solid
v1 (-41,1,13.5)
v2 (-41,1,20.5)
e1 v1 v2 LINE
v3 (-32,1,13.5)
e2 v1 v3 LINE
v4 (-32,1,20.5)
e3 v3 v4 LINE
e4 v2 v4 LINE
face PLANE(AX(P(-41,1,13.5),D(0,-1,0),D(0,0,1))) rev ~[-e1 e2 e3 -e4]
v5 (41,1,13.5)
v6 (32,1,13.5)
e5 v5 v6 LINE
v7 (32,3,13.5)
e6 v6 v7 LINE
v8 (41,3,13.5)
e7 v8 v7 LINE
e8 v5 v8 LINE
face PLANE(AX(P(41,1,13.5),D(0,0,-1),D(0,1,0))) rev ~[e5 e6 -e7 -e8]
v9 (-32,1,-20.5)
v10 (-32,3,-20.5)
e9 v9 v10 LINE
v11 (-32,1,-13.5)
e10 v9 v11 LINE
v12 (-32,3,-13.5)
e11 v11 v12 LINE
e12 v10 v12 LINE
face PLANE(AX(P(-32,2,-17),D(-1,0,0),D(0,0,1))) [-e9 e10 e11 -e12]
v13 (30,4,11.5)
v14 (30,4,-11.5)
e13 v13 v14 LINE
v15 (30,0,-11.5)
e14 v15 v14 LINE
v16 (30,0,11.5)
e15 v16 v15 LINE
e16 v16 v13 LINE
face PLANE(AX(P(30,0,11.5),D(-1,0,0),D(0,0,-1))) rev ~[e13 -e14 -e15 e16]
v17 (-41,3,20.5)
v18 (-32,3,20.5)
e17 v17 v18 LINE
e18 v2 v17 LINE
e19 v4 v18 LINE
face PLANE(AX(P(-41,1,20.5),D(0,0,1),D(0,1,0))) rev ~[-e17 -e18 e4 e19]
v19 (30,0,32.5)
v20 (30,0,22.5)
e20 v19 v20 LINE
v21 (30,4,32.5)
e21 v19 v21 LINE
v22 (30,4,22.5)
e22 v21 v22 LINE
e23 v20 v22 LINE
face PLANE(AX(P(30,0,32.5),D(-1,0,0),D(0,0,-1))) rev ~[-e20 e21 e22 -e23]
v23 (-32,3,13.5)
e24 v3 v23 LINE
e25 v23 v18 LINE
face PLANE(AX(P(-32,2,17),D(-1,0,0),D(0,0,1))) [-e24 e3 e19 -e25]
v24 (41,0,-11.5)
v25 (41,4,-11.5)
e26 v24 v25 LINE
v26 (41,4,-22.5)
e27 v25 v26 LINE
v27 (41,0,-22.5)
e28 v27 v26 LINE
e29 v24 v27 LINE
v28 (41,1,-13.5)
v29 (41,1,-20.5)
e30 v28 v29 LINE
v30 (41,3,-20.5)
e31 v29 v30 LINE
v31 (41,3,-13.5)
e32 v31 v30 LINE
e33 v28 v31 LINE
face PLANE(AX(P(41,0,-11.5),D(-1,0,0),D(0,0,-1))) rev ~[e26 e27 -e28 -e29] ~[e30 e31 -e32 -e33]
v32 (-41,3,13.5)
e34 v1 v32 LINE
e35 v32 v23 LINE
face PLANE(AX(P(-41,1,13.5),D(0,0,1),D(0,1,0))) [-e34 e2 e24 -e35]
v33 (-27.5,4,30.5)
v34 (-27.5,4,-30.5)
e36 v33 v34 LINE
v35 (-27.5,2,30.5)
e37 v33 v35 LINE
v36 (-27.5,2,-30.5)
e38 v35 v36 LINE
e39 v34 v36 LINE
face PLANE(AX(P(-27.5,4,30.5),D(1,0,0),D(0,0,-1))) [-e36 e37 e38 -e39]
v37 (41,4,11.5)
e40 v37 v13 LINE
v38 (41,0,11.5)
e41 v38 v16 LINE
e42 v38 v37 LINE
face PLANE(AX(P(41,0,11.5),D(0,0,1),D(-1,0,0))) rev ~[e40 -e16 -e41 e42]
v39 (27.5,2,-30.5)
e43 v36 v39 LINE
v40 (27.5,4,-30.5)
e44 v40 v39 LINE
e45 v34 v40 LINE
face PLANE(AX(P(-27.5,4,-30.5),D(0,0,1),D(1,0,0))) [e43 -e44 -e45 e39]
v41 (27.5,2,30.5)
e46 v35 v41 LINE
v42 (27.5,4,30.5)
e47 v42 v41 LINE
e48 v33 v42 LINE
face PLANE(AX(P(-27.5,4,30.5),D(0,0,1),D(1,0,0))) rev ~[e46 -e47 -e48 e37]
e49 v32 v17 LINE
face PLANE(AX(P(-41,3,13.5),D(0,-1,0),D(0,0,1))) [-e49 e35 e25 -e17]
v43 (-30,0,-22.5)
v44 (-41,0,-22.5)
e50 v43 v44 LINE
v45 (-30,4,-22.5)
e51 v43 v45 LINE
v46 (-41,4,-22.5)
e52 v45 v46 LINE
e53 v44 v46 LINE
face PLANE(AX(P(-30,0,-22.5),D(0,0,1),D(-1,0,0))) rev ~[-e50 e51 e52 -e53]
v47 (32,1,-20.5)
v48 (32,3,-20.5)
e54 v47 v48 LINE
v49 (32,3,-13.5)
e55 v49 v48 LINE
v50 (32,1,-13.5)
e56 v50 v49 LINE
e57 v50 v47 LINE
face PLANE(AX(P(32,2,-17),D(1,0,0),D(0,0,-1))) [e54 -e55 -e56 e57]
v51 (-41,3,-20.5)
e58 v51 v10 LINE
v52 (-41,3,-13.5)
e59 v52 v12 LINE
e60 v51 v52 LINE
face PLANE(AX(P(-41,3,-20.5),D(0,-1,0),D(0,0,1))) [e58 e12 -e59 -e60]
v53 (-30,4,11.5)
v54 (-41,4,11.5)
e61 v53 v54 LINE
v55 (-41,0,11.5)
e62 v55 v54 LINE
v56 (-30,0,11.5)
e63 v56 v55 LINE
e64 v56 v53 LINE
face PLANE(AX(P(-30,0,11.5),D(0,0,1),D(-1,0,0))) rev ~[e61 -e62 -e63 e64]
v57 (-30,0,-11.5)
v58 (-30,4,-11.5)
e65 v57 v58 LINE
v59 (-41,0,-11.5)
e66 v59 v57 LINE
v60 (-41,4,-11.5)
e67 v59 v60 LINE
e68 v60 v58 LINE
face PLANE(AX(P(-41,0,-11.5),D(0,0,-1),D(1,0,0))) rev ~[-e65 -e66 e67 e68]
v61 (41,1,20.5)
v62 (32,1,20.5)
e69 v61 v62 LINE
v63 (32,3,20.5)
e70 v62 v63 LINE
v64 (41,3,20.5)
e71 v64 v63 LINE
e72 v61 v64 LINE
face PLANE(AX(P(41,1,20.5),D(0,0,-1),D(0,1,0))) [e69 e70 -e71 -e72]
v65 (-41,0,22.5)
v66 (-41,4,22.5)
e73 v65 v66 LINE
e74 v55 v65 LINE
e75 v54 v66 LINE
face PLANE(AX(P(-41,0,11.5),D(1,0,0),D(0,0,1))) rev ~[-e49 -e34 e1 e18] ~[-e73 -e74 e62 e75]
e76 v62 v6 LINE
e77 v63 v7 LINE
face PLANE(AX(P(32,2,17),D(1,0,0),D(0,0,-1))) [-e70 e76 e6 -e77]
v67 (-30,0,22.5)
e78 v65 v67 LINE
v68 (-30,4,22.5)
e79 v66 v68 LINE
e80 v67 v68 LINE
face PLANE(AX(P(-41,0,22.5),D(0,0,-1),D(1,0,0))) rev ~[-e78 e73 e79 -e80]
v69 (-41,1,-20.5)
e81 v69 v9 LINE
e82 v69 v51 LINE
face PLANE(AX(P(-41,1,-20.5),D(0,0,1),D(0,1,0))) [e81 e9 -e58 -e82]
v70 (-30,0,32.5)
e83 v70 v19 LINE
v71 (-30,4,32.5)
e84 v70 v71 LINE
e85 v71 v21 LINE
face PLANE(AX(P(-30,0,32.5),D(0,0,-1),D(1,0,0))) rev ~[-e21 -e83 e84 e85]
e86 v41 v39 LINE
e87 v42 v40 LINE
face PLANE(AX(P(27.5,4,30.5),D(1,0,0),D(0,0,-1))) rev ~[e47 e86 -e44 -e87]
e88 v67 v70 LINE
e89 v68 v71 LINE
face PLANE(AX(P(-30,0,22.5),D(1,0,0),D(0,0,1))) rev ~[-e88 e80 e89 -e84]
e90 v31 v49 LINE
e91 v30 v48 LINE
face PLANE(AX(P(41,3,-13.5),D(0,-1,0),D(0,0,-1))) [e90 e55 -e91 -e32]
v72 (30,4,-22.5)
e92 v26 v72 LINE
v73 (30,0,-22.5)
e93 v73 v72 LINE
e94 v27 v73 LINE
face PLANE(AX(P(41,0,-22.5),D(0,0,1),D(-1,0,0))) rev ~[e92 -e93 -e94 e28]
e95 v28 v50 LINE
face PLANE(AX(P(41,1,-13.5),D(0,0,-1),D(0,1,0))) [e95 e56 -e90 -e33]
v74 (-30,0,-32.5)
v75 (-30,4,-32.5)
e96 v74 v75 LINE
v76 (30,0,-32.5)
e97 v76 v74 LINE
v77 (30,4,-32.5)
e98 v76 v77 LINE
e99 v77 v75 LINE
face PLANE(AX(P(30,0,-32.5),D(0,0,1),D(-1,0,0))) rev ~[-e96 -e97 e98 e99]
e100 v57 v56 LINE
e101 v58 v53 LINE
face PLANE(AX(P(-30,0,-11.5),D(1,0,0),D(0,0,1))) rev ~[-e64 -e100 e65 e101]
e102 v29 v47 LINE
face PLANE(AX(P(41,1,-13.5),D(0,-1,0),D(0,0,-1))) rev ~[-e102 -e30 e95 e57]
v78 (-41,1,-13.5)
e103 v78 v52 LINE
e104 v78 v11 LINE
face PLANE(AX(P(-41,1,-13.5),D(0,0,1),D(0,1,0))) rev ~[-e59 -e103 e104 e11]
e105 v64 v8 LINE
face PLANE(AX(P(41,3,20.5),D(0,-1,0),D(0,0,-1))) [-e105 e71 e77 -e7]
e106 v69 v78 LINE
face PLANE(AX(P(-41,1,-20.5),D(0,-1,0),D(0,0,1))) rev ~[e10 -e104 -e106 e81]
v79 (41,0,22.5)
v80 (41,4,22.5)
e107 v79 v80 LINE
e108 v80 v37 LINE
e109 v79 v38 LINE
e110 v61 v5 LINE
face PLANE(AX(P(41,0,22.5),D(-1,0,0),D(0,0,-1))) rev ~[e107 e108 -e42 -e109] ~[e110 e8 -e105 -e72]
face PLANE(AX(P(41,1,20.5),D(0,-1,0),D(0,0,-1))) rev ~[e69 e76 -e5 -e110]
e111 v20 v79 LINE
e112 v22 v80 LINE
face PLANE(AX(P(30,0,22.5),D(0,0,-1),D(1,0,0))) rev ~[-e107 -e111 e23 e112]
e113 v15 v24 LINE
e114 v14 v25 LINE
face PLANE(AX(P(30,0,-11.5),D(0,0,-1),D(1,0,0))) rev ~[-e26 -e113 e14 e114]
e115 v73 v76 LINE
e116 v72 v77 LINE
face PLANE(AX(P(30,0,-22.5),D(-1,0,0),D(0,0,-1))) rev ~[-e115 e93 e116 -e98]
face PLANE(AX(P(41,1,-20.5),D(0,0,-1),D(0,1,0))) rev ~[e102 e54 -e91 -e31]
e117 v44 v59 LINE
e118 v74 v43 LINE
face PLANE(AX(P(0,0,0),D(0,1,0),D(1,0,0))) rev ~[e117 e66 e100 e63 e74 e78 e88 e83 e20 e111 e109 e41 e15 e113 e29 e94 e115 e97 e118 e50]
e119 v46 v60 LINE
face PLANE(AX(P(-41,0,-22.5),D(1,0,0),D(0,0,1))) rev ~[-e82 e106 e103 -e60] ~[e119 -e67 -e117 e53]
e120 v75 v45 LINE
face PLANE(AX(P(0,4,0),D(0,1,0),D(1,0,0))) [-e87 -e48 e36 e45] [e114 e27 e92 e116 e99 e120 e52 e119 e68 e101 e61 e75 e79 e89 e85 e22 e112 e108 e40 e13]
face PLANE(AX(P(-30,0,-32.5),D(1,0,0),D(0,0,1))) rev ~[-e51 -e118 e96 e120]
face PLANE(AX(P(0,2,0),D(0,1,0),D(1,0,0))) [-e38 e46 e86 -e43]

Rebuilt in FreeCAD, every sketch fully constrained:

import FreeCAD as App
import Part
import Sketcher

doc = App.newDocument("Part")
body = doc.addObject("PartDesign::Body", "Body")

# Sketch on XZ plane
sketch1 = doc.addObject("Sketcher::SketchObject", "Sketch")
body.addObject(sketch1)
sketch1.AttachmentSupport = (doc.XZ_Plane, [""])
sketch1.MapMode = "FlatFace"
sketch1.addGeometry([
    Part.LineSegment(App.Vector(30, 32, 0), App.Vector(30, 22, 0)),  # 0
    Part.LineSegment(App.Vector(30, 22, 0), App.Vector(41, 22, 0)),  # 1
    Part.LineSegment(App.Vector(41, 22, 0), App.Vector(41, 12, 0)),  # 2
    Part.LineSegment(App.Vector(41, 12, 0), App.Vector(30, 12, 0)),  # 3
    Part.LineSegment(App.Vector(30, 12, 0), App.Vector(30, -12, 0)),  # 4
    Part.LineSegment(App.Vector(30, -12, 0), App.Vector(41, -12, 0)),  # 5
    Part.LineSegment(App.Vector(41, -12, 0), App.Vector(41, -22, 0)),  # 6
    Part.LineSegment(App.Vector(41, -22, 0), App.Vector(30, -22, 0)),  # 7
    Part.LineSegment(App.Vector(30, -22, 0), App.Vector(30, -32, 0)),  # 8
    Part.LineSegment(App.Vector(30, -32, 0), App.Vector(-30, -32, 0)),  # 9
    Part.LineSegment(App.Vector(-30, -32, 0), App.Vector(-30, -22, 0)),  # 10
    Part.LineSegment(App.Vector(-30, -22, 0), App.Vector(-41, -22, 0)),  # 11
    Part.LineSegment(App.Vector(-41, -22, 0), App.Vector(-41, -12, 0)),  # 12
    Part.LineSegment(App.Vector(-41, -12, 0), App.Vector(-30, -12, 0)),  # 13
    Part.LineSegment(App.Vector(-30, -12, 0), App.Vector(-30, 12, 0)),  # 14
    Part.LineSegment(App.Vector(-30, 12, 0), App.Vector(-41, 12, 0)),  # 15
    Part.LineSegment(App.Vector(-41, 12, 0), App.Vector(-41, 22, 0)),  # 16
    Part.LineSegment(App.Vector(-41, 22, 0), App.Vector(-30, 22, 0)),  # 17
    Part.LineSegment(App.Vector(-30, 22, 0), App.Vector(-30, 32, 0)),  # 18
    Part.LineSegment(App.Vector(-30, 32, 0), App.Vector(30, 32, 0)),  # 19
], False)
sketch1.addConstraint([
    Sketcher.Constraint("Coincident", 0, 2, 1, 1),
    Sketcher.Constraint("Coincident", 1, 2, 2, 1),
    Sketcher.Constraint("Coincident", 2, 2, 3, 1),
    Sketcher.Constraint("Coincident", 3, 2, 4, 1),
    Sketcher.Constraint("Coincident", 4, 2, 5, 1),
    Sketcher.Constraint("Coincident", 5, 2, 6, 1),
    Sketcher.Constraint("Coincident", 6, 2, 7, 1),
    Sketcher.Constraint("Coincident", 7, 2, 8, 1),
    Sketcher.Constraint("Coincident", 8, 2, 9, 1),
    Sketcher.Constraint("Coincident", 9, 2, 10, 1),
    Sketcher.Constraint("Coincident", 10, 2, 11, 1),
    Sketcher.Constraint("Coincident", 11, 2, 12, 1),
    Sketcher.Constraint("Coincident", 12, 2, 13, 1),
    Sketcher.Constraint("Coincident", 13, 2, 14, 1),
    Sketcher.Constraint("Coincident", 14, 2, 15, 1),
    Sketcher.Constraint("Coincident", 15, 2, 16, 1),
    Sketcher.Constraint("Coincident", 16, 2, 17, 1),
    Sketcher.Constraint("Coincident", 17, 2, 18, 1),
    Sketcher.Constraint("Coincident", 18, 2, 19, 1),
    Sketcher.Constraint("Coincident", 19, 2, 0, 1),
    Sketcher.Constraint("Vertical", 0),
    Sketcher.Constraint("Horizontal", 1),
    Sketcher.Constraint("Vertical", 2),
    Sketcher.Constraint("Horizontal", 3),
    Sketcher.Constraint("Vertical", 4),
    Sketcher.Constraint("Horizontal", 5),
    Sketcher.Constraint("Vertical", 6),
    Sketcher.Constraint("Horizontal", 7),
    Sketcher.Constraint("Vertical", 8),
    Sketcher.Constraint("Horizontal", 9),
    Sketcher.Constraint("Vertical", 10),
    Sketcher.Constraint("Horizontal", 11),
    Sketcher.Constraint("Vertical", 12),
    Sketcher.Constraint("Horizontal", 13),
    Sketcher.Constraint("Vertical", 14),
    Sketcher.Constraint("Horizontal", 15),
    Sketcher.Constraint("Vertical", 16),
    Sketcher.Constraint("Horizontal", 17),
    Sketcher.Constraint("Vertical", 18),
    Sketcher.Constraint("Horizontal", 19),
    Sketcher.Constraint("Symmetric", 0, 2, 10, 2, -1, 1),
    Sketcher.Constraint("Symmetric", 2, 2, 12, 2, -1, 1),
    Sketcher.Constraint("Symmetric", 4, 2, 14, 2, -1, 1),
    Sketcher.Constraint("Symmetric", 6, 2, 16, 2, -1, 1),
    Sketcher.Constraint("Symmetric", 8, 2, 18, 2, -1, 1),
    Sketcher.Constraint("Symmetric", 7, 2, 10, 2, -2),
    Sketcher.Constraint("Symmetric", 5, 2, 12, 2, -2),
    Sketcher.Constraint("Vertical", 0, 2, 3, 2),
    Sketcher.Constraint("Equal", 17, 2),
    Sketcher.Constraint("DistanceX", 1, 1, 1, 2, 11.0),
    Sketcher.Constraint("DistanceX", 9, 2, 9, 1, 60.0),
    Sketcher.Constraint("DistanceY", 0, 2, 0, 1, 10.0),
    Sketcher.Constraint("DistanceY", 4, 2, 4, 1, 23.0),
])
pad1 = doc.addObject("PartDesign::Pad", "Pad")
body.addObject(pad1)
pad1.Profile = sketch1
pad1.Length = 4
pad1.Reversed = True

# Sketch on XZ plane
sketch2 = doc.addObject("Sketcher::SketchObject", "Sketch001")
body.addObject(sketch2)
sketch2.AttachmentSupport = (doc.XZ_Plane, [""])
sketch2.MapMode = "FlatFace"
sketch2.AttachmentOffset = App.Placement(App.Vector(0, 0, -4), App.Rotation())
sketch2.addGeometry([
    Part.LineSegment(App.Vector(-28, -30, 0), App.Vector(-28, 30, 0)),
    Part.LineSegment(App.Vector(-28, 30, 0), App.Vector(28, 30, 0)),
    Part.LineSegment(App.Vector(28, 30, 0), App.Vector(28, -30, 0)),
    Part.LineSegment(App.Vector(28, -30, 0), App.Vector(-28, -30, 0)),
], False)
sketch2.addConstraint([
    Sketcher.Constraint("Coincident", 0, 2, 1, 1),
    Sketcher.Constraint("Coincident", 1, 2, 2, 1),
    Sketcher.Constraint("Coincident", 2, 2, 3, 1),
    Sketcher.Constraint("Coincident", 3, 2, 0, 1),
    Sketcher.Constraint("Vertical", 0),
    Sketcher.Constraint("Horizontal", 1),
    Sketcher.Constraint("Vertical", 2),
    Sketcher.Constraint("Horizontal", 3),
    Sketcher.Constraint("Symmetric", 0, 2, 2, 2, -1, 1),
    Sketcher.Constraint("DistanceX", 1, 1, 1, 2, 55.0),
    Sketcher.Constraint("DistanceY", 0, 1, 0, 2, 61.0),
])
pocket1 = doc.addObject("PartDesign::Pocket", "Pocket")
body.addObject(pocket1)
pocket1.Profile = sketch2
pocket1.Length = 2
pocket1.Reversed = True

# Sketch on YZ plane
sketch3 = doc.addObject("Sketcher::SketchObject", "Sketch002")
body.addObject(sketch3)
sketch3.AttachmentSupport = (doc.YZ_Plane, [""])
sketch3.MapMode = "FlatFace"
sketch3.AttachmentOffset = App.Placement(App.Vector(0, 0, -41), App.Rotation())
sketch3.addGeometry([
    Part.LineSegment(App.Vector(3, -20.5, 0), App.Vector(1, -20.5, 0)),
    Part.LineSegment(App.Vector(1, -20.5, 0), App.Vector(1, -13.5, 0)),
    Part.LineSegment(App.Vector(1, -13.5, 0), App.Vector(3, -13.5, 0)),
    Part.LineSegment(App.Vector(3, -13.5, 0), App.Vector(3, -20.5, 0)),
], False)
sketch3.addConstraint([
    Sketcher.Constraint("Coincident", 0, 2, 1, 1),
    Sketcher.Constraint("Coincident", 1, 2, 2, 1),
    Sketcher.Constraint("Coincident", 2, 2, 3, 1),
    Sketcher.Constraint("Coincident", 3, 2, 0, 1),
    Sketcher.Constraint("Horizontal", 0),
    Sketcher.Constraint("Vertical", 1),
    Sketcher.Constraint("Horizontal", 2),
    Sketcher.Constraint("Vertical", 3),
    Sketcher.Constraint("DistanceX", 0, 2, 0, 1, 2.0),
    Sketcher.Constraint("DistanceY", 1, 1, 1, 2, 7.0),
    Sketcher.Constraint("DistanceX", -1, 1, 0, 2, 1.0),
    Sketcher.Constraint("DistanceY", 0, 2, -1, 1, 20.5),
])
pocket2 = doc.addObject("PartDesign::Pocket", "Pocket001")
body.addObject(pocket2)
pocket2.Profile = sketch3
pocket2.Length = 9
pocket2.Reversed = True

# Sketch on YZ plane
sketch4 = doc.addObject("Sketcher::SketchObject", "Sketch003")
body.addObject(sketch4)
sketch4.AttachmentSupport = (doc.YZ_Plane, [""])
sketch4.MapMode = "FlatFace"
sketch4.AttachmentOffset = App.Placement(App.Vector(0, 0, -41), App.Rotation())
sketch4.addGeometry([
    Part.LineSegment(App.Vector(3, 13.5, 0), App.Vector(1, 13.5, 0)),
    Part.LineSegment(App.Vector(1, 13.5, 0), App.Vector(1, 20.5, 0)),
    Part.LineSegment(App.Vector(1, 20.5, 0), App.Vector(3, 20.5, 0)),
    Part.LineSegment(App.Vector(3, 20.5, 0), App.Vector(3, 13.5, 0)),
], False)
sketch4.addConstraint([
    Sketcher.Constraint("Coincident", 0, 2, 1, 1),
    Sketcher.Constraint("Coincident", 1, 2, 2, 1),
    Sketcher.Constraint("Coincident", 2, 2, 3, 1),
    Sketcher.Constraint("Coincident", 3, 2, 0, 1),
    Sketcher.Constraint("Horizontal", 0),
    Sketcher.Constraint("Vertical", 1),
    Sketcher.Constraint("Horizontal", 2),
    Sketcher.Constraint("Vertical", 3),
    Sketcher.Constraint("DistanceX", 0, 2, 0, 1, 2.0),
    Sketcher.Constraint("DistanceY", 1, 1, 1, 2, 7.0),
    Sketcher.Constraint("DistanceX", -1, 1, 0, 2, 1.0),
    Sketcher.Constraint("DistanceY", -1, 1, 0, 2, 13.5),
])
pocket3 = doc.addObject("PartDesign::Pocket", "Pocket002")
body.addObject(pocket3)
pocket3.Profile = sketch4
pocket3.Length = 9
pocket3.Reversed = True

# Sketch on YZ plane
sketch5 = doc.addObject("Sketcher::SketchObject", "Sketch004")
body.addObject(sketch5)
sketch5.AttachmentSupport = (doc.YZ_Plane, [""])
sketch5.MapMode = "FlatFace"
sketch5.AttachmentOffset = App.Placement(App.Vector(0, 0, 41), App.Rotation())
sketch5.addGeometry([
    Part.LineSegment(App.Vector(3, 20.5, 0), App.Vector(1, 20.5, 0)),
    Part.LineSegment(App.Vector(1, 20.5, 0), App.Vector(1, 13.5, 0)),
    Part.LineSegment(App.Vector(1, 13.5, 0), App.Vector(3, 13.5, 0)),
    Part.LineSegment(App.Vector(3, 13.5, 0), App.Vector(3, 20.5, 0)),
], False)
sketch5.addConstraint([
    Sketcher.Constraint("Coincident", 0, 2, 1, 1),
    Sketcher.Constraint("Coincident", 1, 2, 2, 1),
    Sketcher.Constraint("Coincident", 2, 2, 3, 1),
    Sketcher.Constraint("Coincident", 3, 2, 0, 1),
    Sketcher.Constraint("Horizontal", 0),
    Sketcher.Constraint("Vertical", 1),
    Sketcher.Constraint("Horizontal", 2),
    Sketcher.Constraint("Vertical", 3),
    Sketcher.Constraint("DistanceX", 0, 2, 0, 1, 2.0),
    Sketcher.Constraint("DistanceY", 1, 2, 1, 1, 7.0),
    Sketcher.Constraint("DistanceX", -1, 1, 0, 2, 1.0),
    Sketcher.Constraint("DistanceY", -1, 1, 0, 2, 20.5),
])
pocket4 = doc.addObject("PartDesign::Pocket", "Pocket003")
body.addObject(pocket4)
pocket4.Profile = sketch5
pocket4.Length = 9

# Sketch on YZ plane
sketch6 = doc.addObject("Sketcher::SketchObject", "Sketch005")
body.addObject(sketch6)
sketch6.AttachmentSupport = (doc.YZ_Plane, [""])
sketch6.MapMode = "FlatFace"
sketch6.AttachmentOffset = App.Placement(App.Vector(0, 0, 41), App.Rotation())
sketch6.addGeometry([
    Part.LineSegment(App.Vector(3, -13.5, 0), App.Vector(1, -13.5, 0)),
    Part.LineSegment(App.Vector(1, -13.5, 0), App.Vector(1, -20.5, 0)),
    Part.LineSegment(App.Vector(1, -20.5, 0), App.Vector(3, -20.5, 0)),
    Part.LineSegment(App.Vector(3, -20.5, 0), App.Vector(3, -13.5, 0)),
], False)
sketch6.addConstraint([
    Sketcher.Constraint("Coincident", 0, 2, 1, 1),
    Sketcher.Constraint("Coincident", 1, 2, 2, 1),
    Sketcher.Constraint("Coincident", 2, 2, 3, 1),
    Sketcher.Constraint("Coincident", 3, 2, 0, 1),
    Sketcher.Constraint("Horizontal", 0),
    Sketcher.Constraint("Vertical", 1),
    Sketcher.Constraint("Horizontal", 2),
    Sketcher.Constraint("Vertical", 3),
    Sketcher.Constraint("DistanceX", 0, 2, 0, 1, 2.0),
    Sketcher.Constraint("DistanceY", 1, 2, 1, 1, 7.0),
    Sketcher.Constraint("DistanceX", -1, 1, 0, 2, 1.0),
    Sketcher.Constraint("DistanceY", 0, 2, -1, 1, 13.5),
])
pocket5 = doc.addObject("PartDesign::Pocket", "Pocket004")
body.addObject(pocket5)
pocket5.Profile = sketch6
pocket5.Length = 9

doc.recompute()
